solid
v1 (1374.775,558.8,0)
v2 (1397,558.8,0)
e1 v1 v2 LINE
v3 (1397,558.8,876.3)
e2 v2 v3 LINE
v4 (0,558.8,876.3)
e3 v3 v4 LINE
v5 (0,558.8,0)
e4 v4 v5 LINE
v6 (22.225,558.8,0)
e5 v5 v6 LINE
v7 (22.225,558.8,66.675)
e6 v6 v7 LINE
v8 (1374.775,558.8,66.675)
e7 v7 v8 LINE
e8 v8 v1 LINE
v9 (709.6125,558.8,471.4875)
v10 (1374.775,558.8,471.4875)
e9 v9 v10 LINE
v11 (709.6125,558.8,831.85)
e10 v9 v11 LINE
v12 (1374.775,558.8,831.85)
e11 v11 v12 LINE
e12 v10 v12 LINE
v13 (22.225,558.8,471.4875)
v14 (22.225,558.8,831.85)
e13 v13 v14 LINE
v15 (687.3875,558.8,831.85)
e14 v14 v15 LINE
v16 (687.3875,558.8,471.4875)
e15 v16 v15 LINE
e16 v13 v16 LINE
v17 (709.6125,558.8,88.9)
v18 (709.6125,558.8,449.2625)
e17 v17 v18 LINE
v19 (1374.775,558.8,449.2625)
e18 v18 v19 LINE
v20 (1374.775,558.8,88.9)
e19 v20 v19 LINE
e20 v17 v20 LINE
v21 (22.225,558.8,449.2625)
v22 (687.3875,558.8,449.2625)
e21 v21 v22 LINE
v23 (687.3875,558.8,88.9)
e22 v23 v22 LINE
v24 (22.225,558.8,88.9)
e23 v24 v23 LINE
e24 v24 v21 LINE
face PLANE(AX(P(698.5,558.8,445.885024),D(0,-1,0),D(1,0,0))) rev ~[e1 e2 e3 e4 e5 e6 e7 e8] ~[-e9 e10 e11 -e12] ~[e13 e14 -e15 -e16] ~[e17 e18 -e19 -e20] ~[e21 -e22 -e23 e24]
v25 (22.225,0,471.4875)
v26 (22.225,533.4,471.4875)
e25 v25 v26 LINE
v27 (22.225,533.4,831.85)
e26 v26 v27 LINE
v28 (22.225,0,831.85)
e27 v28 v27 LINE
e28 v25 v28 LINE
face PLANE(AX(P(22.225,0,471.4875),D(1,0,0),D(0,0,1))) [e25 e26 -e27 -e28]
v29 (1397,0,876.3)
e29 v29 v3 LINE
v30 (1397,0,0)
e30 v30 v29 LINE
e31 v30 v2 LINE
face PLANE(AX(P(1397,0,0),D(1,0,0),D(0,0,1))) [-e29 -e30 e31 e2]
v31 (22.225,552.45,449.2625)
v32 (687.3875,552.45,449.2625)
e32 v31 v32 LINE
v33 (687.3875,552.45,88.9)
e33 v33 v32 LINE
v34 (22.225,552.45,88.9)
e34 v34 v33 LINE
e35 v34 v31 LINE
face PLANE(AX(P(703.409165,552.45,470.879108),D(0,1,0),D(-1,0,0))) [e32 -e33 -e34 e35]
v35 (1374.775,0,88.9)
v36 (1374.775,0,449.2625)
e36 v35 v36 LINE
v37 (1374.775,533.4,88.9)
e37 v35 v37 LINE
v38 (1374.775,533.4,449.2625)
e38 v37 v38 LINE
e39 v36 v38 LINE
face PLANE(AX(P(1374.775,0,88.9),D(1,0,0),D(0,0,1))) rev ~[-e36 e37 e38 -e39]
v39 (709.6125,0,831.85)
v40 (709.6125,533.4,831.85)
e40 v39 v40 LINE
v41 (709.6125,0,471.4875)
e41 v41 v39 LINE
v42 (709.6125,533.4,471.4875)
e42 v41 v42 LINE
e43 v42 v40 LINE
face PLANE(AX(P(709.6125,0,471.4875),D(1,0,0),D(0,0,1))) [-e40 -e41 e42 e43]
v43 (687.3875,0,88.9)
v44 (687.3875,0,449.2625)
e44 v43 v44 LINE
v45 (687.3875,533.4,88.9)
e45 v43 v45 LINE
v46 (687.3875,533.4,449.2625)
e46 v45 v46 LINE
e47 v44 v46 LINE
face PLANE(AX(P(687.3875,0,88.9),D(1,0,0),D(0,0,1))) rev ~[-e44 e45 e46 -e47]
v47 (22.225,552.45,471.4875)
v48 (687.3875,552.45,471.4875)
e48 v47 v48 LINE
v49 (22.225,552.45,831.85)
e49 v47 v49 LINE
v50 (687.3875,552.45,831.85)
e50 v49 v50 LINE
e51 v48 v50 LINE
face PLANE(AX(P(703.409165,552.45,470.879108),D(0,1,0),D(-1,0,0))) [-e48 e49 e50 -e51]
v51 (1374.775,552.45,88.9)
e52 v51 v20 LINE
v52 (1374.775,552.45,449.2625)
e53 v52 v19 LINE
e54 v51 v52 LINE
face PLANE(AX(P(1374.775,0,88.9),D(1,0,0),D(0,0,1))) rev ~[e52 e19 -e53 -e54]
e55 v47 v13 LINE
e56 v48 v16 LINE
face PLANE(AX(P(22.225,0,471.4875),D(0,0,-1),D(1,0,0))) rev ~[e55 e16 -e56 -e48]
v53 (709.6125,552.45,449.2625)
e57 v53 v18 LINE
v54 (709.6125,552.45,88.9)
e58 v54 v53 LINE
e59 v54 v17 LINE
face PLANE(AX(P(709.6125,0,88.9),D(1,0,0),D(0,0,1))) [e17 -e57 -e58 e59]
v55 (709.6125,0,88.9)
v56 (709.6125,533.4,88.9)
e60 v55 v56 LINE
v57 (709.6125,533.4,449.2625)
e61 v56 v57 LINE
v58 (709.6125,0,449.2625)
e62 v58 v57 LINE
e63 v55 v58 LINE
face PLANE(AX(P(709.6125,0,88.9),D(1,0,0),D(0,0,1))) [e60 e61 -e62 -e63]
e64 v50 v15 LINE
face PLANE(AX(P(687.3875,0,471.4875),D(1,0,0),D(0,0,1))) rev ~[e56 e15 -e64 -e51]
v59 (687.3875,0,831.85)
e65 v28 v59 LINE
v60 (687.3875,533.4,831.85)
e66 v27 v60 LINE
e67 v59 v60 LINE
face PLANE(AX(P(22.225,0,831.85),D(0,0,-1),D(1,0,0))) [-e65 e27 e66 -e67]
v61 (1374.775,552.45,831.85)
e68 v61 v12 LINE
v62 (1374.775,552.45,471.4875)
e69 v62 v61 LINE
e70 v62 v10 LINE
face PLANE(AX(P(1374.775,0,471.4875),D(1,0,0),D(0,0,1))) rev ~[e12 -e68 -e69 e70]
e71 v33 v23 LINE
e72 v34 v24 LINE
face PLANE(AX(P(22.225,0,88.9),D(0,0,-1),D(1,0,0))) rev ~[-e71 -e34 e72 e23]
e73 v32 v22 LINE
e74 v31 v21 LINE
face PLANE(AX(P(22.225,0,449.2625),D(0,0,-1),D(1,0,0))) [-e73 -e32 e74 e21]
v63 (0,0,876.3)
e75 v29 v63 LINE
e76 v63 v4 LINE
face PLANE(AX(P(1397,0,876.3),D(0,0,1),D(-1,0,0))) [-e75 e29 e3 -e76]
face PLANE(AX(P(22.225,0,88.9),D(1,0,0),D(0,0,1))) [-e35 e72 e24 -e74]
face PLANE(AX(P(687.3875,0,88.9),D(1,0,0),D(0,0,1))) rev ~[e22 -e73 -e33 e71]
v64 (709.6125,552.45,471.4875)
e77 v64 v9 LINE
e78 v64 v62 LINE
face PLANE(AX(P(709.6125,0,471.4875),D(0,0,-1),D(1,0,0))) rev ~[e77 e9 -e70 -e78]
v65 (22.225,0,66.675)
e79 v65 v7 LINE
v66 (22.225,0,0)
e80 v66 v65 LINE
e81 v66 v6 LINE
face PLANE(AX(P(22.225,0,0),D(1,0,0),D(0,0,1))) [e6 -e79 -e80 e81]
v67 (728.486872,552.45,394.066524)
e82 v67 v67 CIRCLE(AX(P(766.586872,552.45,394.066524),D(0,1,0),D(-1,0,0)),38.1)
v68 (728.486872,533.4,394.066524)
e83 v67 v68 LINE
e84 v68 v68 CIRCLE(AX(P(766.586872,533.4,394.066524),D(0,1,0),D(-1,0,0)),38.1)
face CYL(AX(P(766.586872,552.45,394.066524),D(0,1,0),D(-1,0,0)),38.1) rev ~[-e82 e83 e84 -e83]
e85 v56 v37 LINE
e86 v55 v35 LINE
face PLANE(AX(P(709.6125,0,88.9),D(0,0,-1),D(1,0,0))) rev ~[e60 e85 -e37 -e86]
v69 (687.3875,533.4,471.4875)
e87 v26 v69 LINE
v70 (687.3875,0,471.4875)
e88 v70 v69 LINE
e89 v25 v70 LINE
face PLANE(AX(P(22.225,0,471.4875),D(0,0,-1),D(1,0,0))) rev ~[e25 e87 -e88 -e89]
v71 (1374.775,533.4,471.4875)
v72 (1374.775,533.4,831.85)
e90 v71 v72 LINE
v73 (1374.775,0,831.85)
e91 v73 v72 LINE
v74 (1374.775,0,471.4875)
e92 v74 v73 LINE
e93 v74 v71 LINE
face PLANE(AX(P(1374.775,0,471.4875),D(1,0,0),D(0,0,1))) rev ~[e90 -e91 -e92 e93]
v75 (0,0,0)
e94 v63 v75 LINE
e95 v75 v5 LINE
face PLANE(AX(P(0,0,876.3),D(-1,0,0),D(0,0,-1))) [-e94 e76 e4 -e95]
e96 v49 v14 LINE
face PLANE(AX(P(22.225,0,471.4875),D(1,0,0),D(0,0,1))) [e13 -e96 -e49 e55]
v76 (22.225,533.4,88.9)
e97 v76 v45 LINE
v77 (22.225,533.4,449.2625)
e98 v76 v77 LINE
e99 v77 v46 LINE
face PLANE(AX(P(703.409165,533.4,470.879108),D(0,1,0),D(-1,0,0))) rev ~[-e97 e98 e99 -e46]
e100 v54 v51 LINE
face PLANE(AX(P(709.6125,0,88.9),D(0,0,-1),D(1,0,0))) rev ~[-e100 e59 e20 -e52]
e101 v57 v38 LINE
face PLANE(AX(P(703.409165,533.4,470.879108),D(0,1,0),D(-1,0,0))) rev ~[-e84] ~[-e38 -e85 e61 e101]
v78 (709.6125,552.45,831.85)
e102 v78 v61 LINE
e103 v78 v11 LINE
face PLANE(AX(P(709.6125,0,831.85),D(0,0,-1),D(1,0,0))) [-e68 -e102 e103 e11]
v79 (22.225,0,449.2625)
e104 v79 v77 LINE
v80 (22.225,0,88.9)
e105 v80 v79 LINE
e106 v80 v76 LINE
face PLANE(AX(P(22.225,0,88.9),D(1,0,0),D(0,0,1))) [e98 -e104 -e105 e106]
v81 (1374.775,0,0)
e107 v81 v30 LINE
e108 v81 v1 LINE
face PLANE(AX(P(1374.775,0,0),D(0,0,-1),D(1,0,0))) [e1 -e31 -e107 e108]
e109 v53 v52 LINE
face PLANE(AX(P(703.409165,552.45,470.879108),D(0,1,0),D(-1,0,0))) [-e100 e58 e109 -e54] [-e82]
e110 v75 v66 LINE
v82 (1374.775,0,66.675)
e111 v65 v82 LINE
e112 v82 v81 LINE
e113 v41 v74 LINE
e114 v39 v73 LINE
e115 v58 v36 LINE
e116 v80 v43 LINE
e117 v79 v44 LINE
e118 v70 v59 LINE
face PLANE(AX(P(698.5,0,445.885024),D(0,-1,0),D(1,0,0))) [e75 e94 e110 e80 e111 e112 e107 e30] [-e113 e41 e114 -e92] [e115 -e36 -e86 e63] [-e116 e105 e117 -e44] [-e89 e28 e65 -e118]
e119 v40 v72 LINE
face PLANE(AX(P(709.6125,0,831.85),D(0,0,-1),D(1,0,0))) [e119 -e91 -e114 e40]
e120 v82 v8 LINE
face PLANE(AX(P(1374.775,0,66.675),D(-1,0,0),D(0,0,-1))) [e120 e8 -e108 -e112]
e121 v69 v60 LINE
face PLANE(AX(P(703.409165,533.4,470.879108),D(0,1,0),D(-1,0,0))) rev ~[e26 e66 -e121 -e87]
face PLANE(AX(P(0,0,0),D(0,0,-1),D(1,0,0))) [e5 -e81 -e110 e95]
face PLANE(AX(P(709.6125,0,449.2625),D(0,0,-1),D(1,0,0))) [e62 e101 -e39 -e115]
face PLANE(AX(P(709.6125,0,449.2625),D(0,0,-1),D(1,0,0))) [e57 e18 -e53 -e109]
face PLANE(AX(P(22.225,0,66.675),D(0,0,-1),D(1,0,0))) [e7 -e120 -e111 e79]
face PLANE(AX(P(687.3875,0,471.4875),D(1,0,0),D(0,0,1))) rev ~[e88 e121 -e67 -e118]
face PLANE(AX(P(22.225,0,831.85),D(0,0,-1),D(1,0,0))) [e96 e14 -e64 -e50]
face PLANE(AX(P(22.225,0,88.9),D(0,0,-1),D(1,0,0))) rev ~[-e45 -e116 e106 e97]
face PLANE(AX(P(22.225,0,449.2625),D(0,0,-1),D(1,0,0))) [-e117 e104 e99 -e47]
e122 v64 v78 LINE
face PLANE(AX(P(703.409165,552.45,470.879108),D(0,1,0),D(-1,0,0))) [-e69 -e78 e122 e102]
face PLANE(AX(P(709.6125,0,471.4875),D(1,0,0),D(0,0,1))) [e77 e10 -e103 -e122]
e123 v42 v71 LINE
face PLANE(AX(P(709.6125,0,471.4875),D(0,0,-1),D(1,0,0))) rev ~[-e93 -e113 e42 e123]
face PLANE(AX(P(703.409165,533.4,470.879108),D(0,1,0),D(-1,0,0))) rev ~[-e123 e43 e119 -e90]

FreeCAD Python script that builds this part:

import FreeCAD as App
import Part
import Sketcher

V = App.Vector
Q = App.Units.Quantity


def add_polygon(sketch, points):
    """Adds a closed chain of lines whose ends are joined by coincident constraints."""
    first, n = sketch.GeometryCount, len(points)
    for a, b in zip(points, points[1:] + points[:1]):
        sketch.addGeometry(Part.LineSegment(App.Vector(*a, 0), App.Vector(*b, 0)), False)
    for i in range(n):
        sketch.addConstraint(Sketcher.Constraint("Coincident", first + i, 2, first + (i + 1) % n, 1))

doc = App.newDocument("Part")
body = doc.addObject("PartDesign::Body", "Body")

# Sketch on XZ plane
sketch1 = body.newObject("Sketcher::SketchObject", "Sketch")
sketch1.AttachmentSupport = (doc.getObject("XZ_Plane"), [""])
sketch1.MapMode = "FlatFace"
add_polygon(sketch1, [(0, 876), (0, 0), (22, 0), (22, 67), (1375, 67), (1375, 0), (1397, 0), (1397, 876)])  # lines 0-7
add_polygon(sketch1, [(687, 89), (22, 89), (22, 449), (687, 449)])  # lines 8-11
add_polygon(sketch1, [(1375, 89), (710, 89), (710, 449), (1375, 449)])  # lines 12-15
add_polygon(sketch1, [(687, 471), (22, 471), (22, 832), (687, 832)])  # lines 16-19
add_polygon(sketch1, [(1375, 471), (710, 471), (710, 832), (1375, 832)])  # lines 20-23
sketch1.addConstraint([
    Sketcher.Constraint("Vertical", 0),
    Sketcher.Constraint("Horizontal", 1),
    Sketcher.Constraint("Vertical", 2),
    Sketcher.Constraint("Horizontal", 3),
    Sketcher.Constraint("Vertical", 4),
    Sketcher.Constraint("Horizontal", 5),
    Sketcher.Constraint("Vertical", 6),
    Sketcher.Constraint("Horizontal", 7),
    Sketcher.Constraint("Horizontal", 8),
    Sketcher.Constraint("Vertical", 9),
    Sketcher.Constraint("Horizontal", 10),
    Sketcher.Constraint("Vertical", 11),
    Sketcher.Constraint("Horizontal", 12),
    Sketcher.Constraint("Vertical", 13),
    Sketcher.Constraint("Horizontal", 14),
    Sketcher.Constraint("Vertical", 15),
    Sketcher.Constraint("Horizontal", 16),
    Sketcher.Constraint("Vertical", 17),
    Sketcher.Constraint("Horizontal", 18),
    Sketcher.Constraint("Vertical", 19),
    Sketcher.Constraint("Horizontal", 20),
    Sketcher.Constraint("Vertical", 21),
    Sketcher.Constraint("Horizontal", 22),
    Sketcher.Constraint("Vertical", 23),
    Sketcher.Constraint("Coincident", 0, 2, -1, 1),
    Sketcher.Constraint("PointOnObject", 4, 2, -1),
    Sketcher.Constraint("Horizontal", 11, 2, 12, 2),
    Sketcher.Constraint("Horizontal", 10, 2, 13, 2),
    Sketcher.Constraint("Horizontal", 19, 2, 20, 2),
    Sketcher.Constraint("Horizontal", 18, 2, 21, 2),
    Sketcher.Constraint("Vertical", 2, 2, 8, 2),
    Sketcher.Constraint("Vertical", 4, 2, 14, 2),
    Sketcher.Constraint("Vertical", 9, 2, 16, 2),
    Sketcher.Constraint("Vertical", 11, 2, 18, 2),
    Sketcher.Constraint("Vertical", 13, 2, 20, 2),
    Sketcher.Constraint("Vertical", 15, 2, 22, 2),
    Sketcher.Constraint("Equal", 1, 5),
    Sketcher.Constraint("Equal", 10, 12),
    Sketcher.Constraint("Equal", 15, 17),
    Sketcher.Constraint("DistanceX", 7, 2, 7, 1, Q("55 in")),
    Sketcher.Constraint("DistanceY", 0, 2, 0, 1, Q("34.5 in")),
    Sketcher.Constraint("DistanceY", 8, 2, 7, 2, Q("31 in")),
    Sketcher.Constraint("DistanceX", 3, 1, 3, 2, Q("53.25 in")),
    Sketcher.Constraint("DistanceX", 8, 2, 8, 1, Q("26.1875 in")),
    Sketcher.Constraint("DistanceY", 2, 1, 2, 2, Q("2.625 in")),
    Sketcher.Constraint("DistanceY", 9, 1, 9, 2, Q("14.1875 in")),
    Sketcher.Constraint("DistanceY", -1, 1, 17, 2, Q("32.75 in")),
])
pad1 = body.newObject("PartDesign::Pad", "Pad")
pad1.Profile = sketch1
pad1.Length = Q("22 in")
pad1.Reversed = True

# Sketch on XZ plane
sketch2 = body.newObject("Sketcher::SketchObject", "Sketch001")
sketch2.AttachmentSupport = (doc.getObject("XZ_Plane"), [""])
sketch2.MapMode = "FlatFace"
sketch2.AttachmentOffset = App.Placement(V(0, 0, -21.75 * 25.4), App.Rotation())
add_polygon(sketch2, [(1389, 861), (1389, 80), (18, 80), (18, 861)])  # lines 0-3
sketch2.addGeometry(Part.Circle(V(767, 394, 0), V(0, 0, 1), 38), False)  # 4
sketch2.addConstraint([
    Sketcher.Constraint("Vertical", 0),
    Sketcher.Constraint("Horizontal", 1),
    Sketcher.Constraint("Vertical", 2),
    Sketcher.Constraint("Horizontal", 3),
    Sketcher.Constraint("Diameter", 4, Q("3 in")),
    Sketcher.Constraint("DistanceY", 0, 2, 4, 3, 313.641999),
    Sketcher.Constraint("DistanceX", 1, 2, 1, 1, 1371.297563),
    Sketcher.Constraint("DistanceY", 0, 2, 0, 1, 780.909165),
    Sketcher.Constraint("DistanceY", -1, 1, 2, 2, 861.33369),
    Sketcher.Constraint("DistanceX", 1, 2, 4, 3, 748.826489),
    Sketcher.Constraint("DistanceX", -1, 1, 4, 3, 766.586872),
])
pad2 = body.newObject("PartDesign::Pad", "Pad001")
pad2.Profile = sketch2
pad2.Length = Q("0.75 in")

doc.recompute()
